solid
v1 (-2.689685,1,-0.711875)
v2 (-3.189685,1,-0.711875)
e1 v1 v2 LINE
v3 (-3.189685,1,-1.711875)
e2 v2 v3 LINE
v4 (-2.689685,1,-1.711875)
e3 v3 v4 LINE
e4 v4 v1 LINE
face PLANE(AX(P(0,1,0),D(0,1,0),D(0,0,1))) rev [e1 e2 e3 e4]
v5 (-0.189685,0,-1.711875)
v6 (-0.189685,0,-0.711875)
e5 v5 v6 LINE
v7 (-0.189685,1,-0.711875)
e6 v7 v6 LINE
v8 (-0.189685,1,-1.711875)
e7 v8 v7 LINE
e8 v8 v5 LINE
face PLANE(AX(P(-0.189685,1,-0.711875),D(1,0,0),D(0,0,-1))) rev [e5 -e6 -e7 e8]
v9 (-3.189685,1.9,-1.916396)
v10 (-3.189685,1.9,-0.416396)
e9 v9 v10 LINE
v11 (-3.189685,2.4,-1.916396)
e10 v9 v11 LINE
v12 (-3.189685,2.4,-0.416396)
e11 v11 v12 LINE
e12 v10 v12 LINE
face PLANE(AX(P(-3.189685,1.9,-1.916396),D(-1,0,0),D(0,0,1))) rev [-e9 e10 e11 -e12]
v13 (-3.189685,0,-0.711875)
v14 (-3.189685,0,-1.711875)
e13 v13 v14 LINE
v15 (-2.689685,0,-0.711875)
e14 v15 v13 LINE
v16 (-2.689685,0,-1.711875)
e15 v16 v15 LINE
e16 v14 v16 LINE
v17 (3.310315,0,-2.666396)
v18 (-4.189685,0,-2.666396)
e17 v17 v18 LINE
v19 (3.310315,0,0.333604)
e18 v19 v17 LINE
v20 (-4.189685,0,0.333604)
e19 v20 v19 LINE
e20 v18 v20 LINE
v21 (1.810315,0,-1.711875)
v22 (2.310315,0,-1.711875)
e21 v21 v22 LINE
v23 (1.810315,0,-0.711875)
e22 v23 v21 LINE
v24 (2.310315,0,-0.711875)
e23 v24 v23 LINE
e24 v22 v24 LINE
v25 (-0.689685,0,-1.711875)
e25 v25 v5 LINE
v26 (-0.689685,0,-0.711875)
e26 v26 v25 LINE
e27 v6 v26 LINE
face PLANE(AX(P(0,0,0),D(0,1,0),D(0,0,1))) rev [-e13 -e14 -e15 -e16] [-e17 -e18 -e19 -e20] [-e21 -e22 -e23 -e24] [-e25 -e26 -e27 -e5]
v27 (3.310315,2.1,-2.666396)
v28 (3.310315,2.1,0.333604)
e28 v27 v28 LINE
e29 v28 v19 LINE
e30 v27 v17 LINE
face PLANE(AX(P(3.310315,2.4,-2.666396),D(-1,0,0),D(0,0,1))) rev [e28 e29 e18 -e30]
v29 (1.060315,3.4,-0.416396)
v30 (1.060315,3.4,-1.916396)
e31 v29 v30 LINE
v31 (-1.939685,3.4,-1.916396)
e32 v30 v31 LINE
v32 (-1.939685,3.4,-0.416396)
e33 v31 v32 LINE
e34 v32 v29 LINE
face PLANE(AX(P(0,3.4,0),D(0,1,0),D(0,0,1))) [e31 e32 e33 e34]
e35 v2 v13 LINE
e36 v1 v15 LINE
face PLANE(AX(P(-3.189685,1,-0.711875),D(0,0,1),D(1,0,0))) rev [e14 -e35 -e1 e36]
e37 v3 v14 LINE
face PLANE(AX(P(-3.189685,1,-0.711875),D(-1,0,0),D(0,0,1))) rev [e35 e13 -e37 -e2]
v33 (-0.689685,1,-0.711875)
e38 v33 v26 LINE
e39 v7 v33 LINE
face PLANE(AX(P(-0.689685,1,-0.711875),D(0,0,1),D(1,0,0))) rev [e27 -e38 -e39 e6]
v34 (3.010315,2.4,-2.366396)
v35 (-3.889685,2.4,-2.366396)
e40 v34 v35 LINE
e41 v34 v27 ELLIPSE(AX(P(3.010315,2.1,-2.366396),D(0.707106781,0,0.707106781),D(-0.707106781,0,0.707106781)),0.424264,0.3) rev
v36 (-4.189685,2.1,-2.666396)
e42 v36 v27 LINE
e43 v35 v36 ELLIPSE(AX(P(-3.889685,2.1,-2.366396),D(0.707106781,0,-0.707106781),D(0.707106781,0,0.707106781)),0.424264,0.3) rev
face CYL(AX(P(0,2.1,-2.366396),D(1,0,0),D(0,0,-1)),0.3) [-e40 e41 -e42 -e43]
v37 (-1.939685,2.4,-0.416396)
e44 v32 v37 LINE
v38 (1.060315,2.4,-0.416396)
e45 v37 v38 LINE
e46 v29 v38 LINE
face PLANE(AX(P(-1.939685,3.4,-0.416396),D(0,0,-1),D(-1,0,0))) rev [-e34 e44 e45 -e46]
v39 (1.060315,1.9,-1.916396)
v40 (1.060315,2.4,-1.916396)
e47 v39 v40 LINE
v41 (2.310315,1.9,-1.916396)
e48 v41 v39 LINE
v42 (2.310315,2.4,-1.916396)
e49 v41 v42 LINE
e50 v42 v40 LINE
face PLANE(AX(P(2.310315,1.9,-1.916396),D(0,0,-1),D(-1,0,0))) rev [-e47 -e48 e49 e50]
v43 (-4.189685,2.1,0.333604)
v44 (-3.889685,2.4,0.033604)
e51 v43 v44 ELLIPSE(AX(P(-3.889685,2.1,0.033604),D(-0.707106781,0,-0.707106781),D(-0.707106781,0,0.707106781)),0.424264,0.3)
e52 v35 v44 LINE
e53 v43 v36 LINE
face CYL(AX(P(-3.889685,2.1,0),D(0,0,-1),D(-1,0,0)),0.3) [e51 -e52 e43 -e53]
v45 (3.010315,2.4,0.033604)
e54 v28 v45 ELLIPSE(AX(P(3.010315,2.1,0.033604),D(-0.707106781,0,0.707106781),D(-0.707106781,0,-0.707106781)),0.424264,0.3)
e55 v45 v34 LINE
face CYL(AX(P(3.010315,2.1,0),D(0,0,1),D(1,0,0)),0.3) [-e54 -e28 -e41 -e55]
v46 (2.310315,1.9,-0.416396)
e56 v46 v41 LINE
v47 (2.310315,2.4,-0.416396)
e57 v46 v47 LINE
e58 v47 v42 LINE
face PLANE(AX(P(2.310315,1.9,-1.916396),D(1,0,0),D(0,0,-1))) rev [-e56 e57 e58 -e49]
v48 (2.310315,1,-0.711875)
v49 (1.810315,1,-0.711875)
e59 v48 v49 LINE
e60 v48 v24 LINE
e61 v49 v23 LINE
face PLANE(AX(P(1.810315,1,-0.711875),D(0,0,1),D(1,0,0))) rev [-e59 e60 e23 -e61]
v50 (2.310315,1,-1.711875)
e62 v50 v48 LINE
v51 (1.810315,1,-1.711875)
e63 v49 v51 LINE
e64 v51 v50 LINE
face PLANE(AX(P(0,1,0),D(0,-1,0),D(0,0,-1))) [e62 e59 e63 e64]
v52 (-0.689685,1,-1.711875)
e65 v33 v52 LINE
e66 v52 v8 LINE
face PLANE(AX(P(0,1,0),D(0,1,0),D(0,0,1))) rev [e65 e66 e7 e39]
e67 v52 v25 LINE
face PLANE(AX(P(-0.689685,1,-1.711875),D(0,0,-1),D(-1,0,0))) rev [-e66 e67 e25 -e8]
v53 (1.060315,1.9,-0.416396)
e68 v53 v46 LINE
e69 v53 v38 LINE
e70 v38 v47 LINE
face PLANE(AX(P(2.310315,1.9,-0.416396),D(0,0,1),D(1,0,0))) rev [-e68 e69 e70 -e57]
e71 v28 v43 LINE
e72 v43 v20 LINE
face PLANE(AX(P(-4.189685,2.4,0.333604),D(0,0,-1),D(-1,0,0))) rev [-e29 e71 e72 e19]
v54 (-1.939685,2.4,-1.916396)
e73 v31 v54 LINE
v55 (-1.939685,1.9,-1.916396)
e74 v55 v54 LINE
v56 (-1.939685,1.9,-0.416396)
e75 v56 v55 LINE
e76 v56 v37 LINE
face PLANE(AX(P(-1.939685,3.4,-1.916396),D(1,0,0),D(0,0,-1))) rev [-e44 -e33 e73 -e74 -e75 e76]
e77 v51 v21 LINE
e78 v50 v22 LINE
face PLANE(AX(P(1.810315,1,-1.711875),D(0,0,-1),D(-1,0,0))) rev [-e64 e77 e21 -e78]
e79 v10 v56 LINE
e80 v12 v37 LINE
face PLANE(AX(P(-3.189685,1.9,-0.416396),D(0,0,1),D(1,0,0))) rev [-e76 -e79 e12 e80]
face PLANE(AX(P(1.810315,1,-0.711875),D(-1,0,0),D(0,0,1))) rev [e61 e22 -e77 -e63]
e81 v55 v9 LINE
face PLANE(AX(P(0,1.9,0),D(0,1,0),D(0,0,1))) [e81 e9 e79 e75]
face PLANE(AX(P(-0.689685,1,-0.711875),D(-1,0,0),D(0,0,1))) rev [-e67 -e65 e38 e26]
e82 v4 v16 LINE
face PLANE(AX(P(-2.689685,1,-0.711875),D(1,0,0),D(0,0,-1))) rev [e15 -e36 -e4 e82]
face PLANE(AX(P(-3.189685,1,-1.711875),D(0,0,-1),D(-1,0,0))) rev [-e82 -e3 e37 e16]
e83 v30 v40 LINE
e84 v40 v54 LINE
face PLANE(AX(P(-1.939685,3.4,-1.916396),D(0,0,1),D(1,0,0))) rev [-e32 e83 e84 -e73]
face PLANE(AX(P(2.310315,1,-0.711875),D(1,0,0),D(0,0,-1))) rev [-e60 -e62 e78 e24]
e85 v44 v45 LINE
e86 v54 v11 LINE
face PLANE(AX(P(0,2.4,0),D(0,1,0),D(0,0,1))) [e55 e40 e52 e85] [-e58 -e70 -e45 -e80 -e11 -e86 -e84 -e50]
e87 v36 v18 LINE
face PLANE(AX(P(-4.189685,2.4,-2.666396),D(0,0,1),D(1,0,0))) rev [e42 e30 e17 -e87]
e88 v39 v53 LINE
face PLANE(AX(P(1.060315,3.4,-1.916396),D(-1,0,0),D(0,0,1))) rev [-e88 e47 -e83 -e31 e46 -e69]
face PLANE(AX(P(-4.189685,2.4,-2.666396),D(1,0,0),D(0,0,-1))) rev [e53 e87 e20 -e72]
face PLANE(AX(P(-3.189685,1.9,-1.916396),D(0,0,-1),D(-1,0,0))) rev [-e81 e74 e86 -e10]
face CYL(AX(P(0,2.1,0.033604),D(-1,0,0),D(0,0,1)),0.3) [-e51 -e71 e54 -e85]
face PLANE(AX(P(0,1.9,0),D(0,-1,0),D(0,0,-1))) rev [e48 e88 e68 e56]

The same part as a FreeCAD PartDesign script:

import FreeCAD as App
import Part
import Sketcher


def edges_at(feature, points):
    """Names of the edges that pass closest to the given points."""
    edges = feature.Shape.Edges
    near = lambda p: min(range(len(edges)), key=lambda i: edges[i].distToShape(Part.Vertex(*p))[0])
    return sorted({f"Edge{near(p) + 1}" for p in points})

doc = App.newDocument("Part")
params = doc.addObject("Spreadsheet::Sheet", "Params")
for row, (alias, value) in enumerate([
    ("sketch1_height", "3 mm"),
    ("sketch1_width", "7.5 mm"),
    ("pad1_length", "2.4 mm"),
    ("sketch2_width", "3 mm"),
    ("sketch2_height", "1.5 mm"),
    ("pad2_length", "1 mm"),
    ("sketch3_height", "1.5 mm"),
    ("sketch3_width", "1.25 mm"),
    ("pocket1_length", "0.5 mm"),
    ("sketch4_height", "1 mm"),
    ("sketch4_width", "0.5 mm"),
    ("pocket2_length", "1 mm"),
    ("fillet_radius", "0.3 mm"),
], start=1):
    params.set(f"A{row}", alias)
    params.set(f"B{row}", "=" + value)
    params.setAlias(f"B{row}", alias)

body = doc.addObject("PartDesign::Body", "Body")

sketch1 = body.newObject("Sketcher::SketchObject", "Sketch")
sketch1.AttachmentSupport = (doc.getObject("XZ_Plane"), [""])
sketch1.MapMode = "FlatFace"
sketch1.addGeometry(Part.LineSegment(App.Vector(-4.189685, -2.666396, 0), App.Vector(-4.189685, 0.333604, 0)), False)
sketch1.addGeometry(Part.LineSegment(App.Vector(-4.189685, 0.333604, 0), App.Vector(3.310315, 0.333604, 0)), False)
sketch1.addGeometry(Part.LineSegment(App.Vector(3.310315, 0.333604, 0), App.Vector(3.310315, -2.666396, 0)), False)
sketch1.addGeometry(Part.LineSegment(App.Vector(3.310315, -2.666396, 0), App.Vector(-4.189685, -2.666396, 0)), False)
sketch1.addConstraint(Sketcher.Constraint("Coincident", 0, 2, 1, 1))
sketch1.addConstraint(Sketcher.Constraint("Coincident", 1, 2, 2, 1))
sketch1.addConstraint(Sketcher.Constraint("Coincident", 2, 2, 3, 1))
sketch1.addConstraint(Sketcher.Constraint("Coincident", 3, 2, 0, 1))
sketch1.addConstraint(Sketcher.Constraint("Vertical", 0))
sketch1.addConstraint(Sketcher.Constraint("Horizontal", 1))
sketch1.addConstraint(Sketcher.Constraint("Vertical", 2))
sketch1.addConstraint(Sketcher.Constraint("Horizontal", 3))
sketch1.addConstraint(Sketcher.Constraint("DistanceY", 0, 1, 0, 2, 3.0))
sketch1.addConstraint(Sketcher.Constraint("DistanceX", 1, 1, 1, 2, 7.5))
sketch1.addConstraint(Sketcher.Constraint("DistanceX", 0, 2, -1, 1, 4.189685))
sketch1.addConstraint(Sketcher.Constraint("DistanceY", -1, 1, 0, 2, 0.333604))
sketch1.setExpression("Constraints[8]", "Params.sketch1_height")
sketch1.setExpression("Constraints[9]", "Params.sketch1_width")
pad1 = body.newObject("PartDesign::Pad", "Pad")
pad1.Profile = sketch1
pad1.setExpression("Length", "Params.pad1_length")
pad1.Reversed = True

sketch2 = body.newObject("Sketcher::SketchObject", "Sketch001")
sketch2.AttachmentSupport = (doc.getObject("XZ_Plane"), [""])
sketch2.MapMode = "FlatFace"
sketch2.AttachmentOffset = App.Placement(App.Vector(0, 0, -2.4), App.Rotation())
sketch2.addGeometry(Part.LineSegment(App.Vector(-1.939685, -1.916396, 0), App.Vector(-1.939685, -0.416396, 0)), False)
sketch2.addGeometry(Part.LineSegment(App.Vector(-1.939685, -0.416396, 0), App.Vector(1.060315, -0.416396, 0)), False)
sketch2.addGeometry(Part.LineSegment(App.Vector(1.060315, -0.416396, 0), App.Vector(1.060315, -1.916396, 0)), False)
sketch2.addGeometry(Part.LineSegment(App.Vector(1.060315, -1.916396, 0), App.Vector(-1.939685, -1.916396, 0)), False)
sketch2.addConstraint(Sketcher.Constraint("Coincident", 0, 2, 1, 1))
sketch2.addConstraint(Sketcher.Constraint("Coincident", 1, 2, 2, 1))
sketch2.addConstraint(Sketcher.Constraint("Coincident", 2, 2, 3, 1))
sketch2.addConstraint(Sketcher.Constraint("Coincident", 3, 2, 0, 1))
sketch2.addConstraint(Sketcher.Constraint("Vertical", 0))
sketch2.addConstraint(Sketcher.Constraint("Horizontal", 1))
sketch2.addConstraint(Sketcher.Constraint("Vertical", 2))
sketch2.addConstraint(Sketcher.Constraint("Horizontal", 3))
sketch2.addConstraint(Sketcher.Constraint("DistanceX", 1, 1, 1, 2, 3.0))
sketch2.addConstraint(Sketcher.Constraint("DistanceY", 0, 1, 0, 2, 1.5))
sketch2.addConstraint(Sketcher.Constraint("DistanceX", 0, 2, -1, 1, 1.939685))
sketch2.addConstraint(Sketcher.Constraint("DistanceY", 0, 2, -1, 1, 0.416396))
sketch2.setExpression("Constraints[8]", "Params.sketch2_width")
sketch2.setExpression("Constraints[9]", "Params.sketch2_height")
pad2 = body.newObject("PartDesign::Pad", "Pad001")
pad2.Profile = sketch2
pad2.setExpression("Length", "Params.pad2_length")
pad2.Reversed = True

sketch3 = body.newObject("Sketcher::SketchObject", "Sketch002")
sketch3.AttachmentSupport = (doc.getObject("XZ_Plane"), [""])
sketch3.MapMode = "FlatFace"
sketch3.AttachmentOffset = App.Placement(App.Vector(0, 0, -2.4), App.Rotation())
sketch3.addGeometry(Part.LineSegment(App.Vector(1.060315, -1.916396, 0), App.Vector(1.060315, -0.416396, 0)), False)
sketch3.addGeometry(Part.LineSegment(App.Vector(1.060315, -0.416396, 0), App.Vector(2.310315, -0.416396, 0)), False)
sketch3.addGeometry(Part.LineSegment(App.Vector(2.310315, -0.416396, 0), App.Vector(2.310315, -1.916396, 0)), False)
sketch3.addGeometry(Part.LineSegment(App.Vector(2.310315, -1.916396, 0), App.Vector(1.060315, -1.916396, 0)), False)
sketch3.addGeometry(Part.LineSegment(App.Vector(-3.189685, -1.916396, 0), App.Vector(-3.189685, -0.416396, 0)), False)
sketch3.addGeometry(Part.LineSegment(App.Vector(-3.189685, -0.416396, 0), App.Vector(-1.939685, -0.416396, 0)), False)
sketch3.addGeometry(Part.LineSegment(App.Vector(-1.939685, -0.416396, 0), App.Vector(-1.939685, -1.916396, 0)), False)
sketch3.addGeometry(Part.LineSegment(App.Vector(-1.939685, -1.916396, 0), App.Vector(-3.189685, -1.916396, 0)), False)
sketch3.addConstraint(Sketcher.Constraint("Coincident", 0, 2, 1, 1))
sketch3.addConstraint(Sketcher.Constraint("Coincident", 1, 2, 2, 1))
sketch3.addConstraint(Sketcher.Constraint("Coincident", 2, 2, 3, 1))
sketch3.addConstraint(Sketcher.Constraint("Coincident", 3, 2, 0, 1))
sketch3.addConstraint(Sketcher.Constraint("Coincident", 4, 2, 5, 1))
sketch3.addConstraint(Sketcher.Constraint("Coincident", 5, 2, 6, 1))
sketch3.addConstraint(Sketcher.Constraint("Coincident", 6, 2, 7, 1))
sketch3.addConstraint(Sketcher.Constraint("Coincident", 7, 2, 4, 1))
sketch3.addConstraint(Sketcher.Constraint("Vertical", 0))
sketch3.addConstraint(Sketcher.Constraint("Horizontal", 1))
sketch3.addConstraint(Sketcher.Constraint("Vertical", 2))
sketch3.addConstraint(Sketcher.Constraint("Horizontal", 3))
sketch3.addConstraint(Sketcher.Constraint("Vertical", 4))
sketch3.addConstraint(Sketcher.Constraint("Horizontal", 5))
sketch3.addConstraint(Sketcher.Constraint("Vertical", 6))
sketch3.addConstraint(Sketcher.Constraint("Horizontal", 7))
sketch3.addConstraint(Sketcher.Constraint("Horizontal", 1, 2, 4, 2))
sketch3.addConstraint(Sketcher.Constraint("Horizontal", 3, 2, 6, 2))
sketch3.addConstraint(Sketcher.Constraint("Equal", 3, 5))
sketch3.addConstraint(Sketcher.Constraint("DistanceY", 0, 1, 0, 2, 1.5))
sketch3.addConstraint(Sketcher.Constraint("DistanceX", 5, 2, 0, 2, 3.0))
sketch3.addConstraint(Sketcher.Constraint("DistanceX", 1, 1, 1, 2, 1.25))
sketch3.addConstraint(Sketcher.Constraint("DistanceX", -1, 1, 0, 2, 1.060315))
sketch3.addConstraint(Sketcher.Constraint("DistanceY", 0, 2, -1, 1, 0.416396))
sketch3.setExpression("Constraints[19]", "Params.sketch3_height")
sketch3.setExpression("Constraints[21]", "Params.sketch3_width")
pocket1 = body.newObject("PartDesign::Pocket", "Pocket")
pocket1.Profile = sketch3
pocket1.setExpression("Length", "Params.pocket1_length")
pocket1.Reversed = True

sketch4 = body.newObject("Sketcher::SketchObject", "Sketch003")
sketch4.AttachmentSupport = (doc.getObject("XZ_Plane"), [""])
sketch4.MapMode = "FlatFace"
sketch4.addGeometry(Part.LineSegment(App.Vector(1.810315, -0.711875, 0), App.Vector(1.810315, -1.711875, 0)), False)
sketch4.addGeometry(Part.LineSegment(App.Vector(1.810315, -1.711875, 0), App.Vector(2.310315, -1.711875, 0)), False)
sketch4.addGeometry(Part.LineSegment(App.Vector(2.310315, -1.711875, 0), App.Vector(2.310315, -0.711875, 0)), False)
sketch4.addGeometry(Part.LineSegment(App.Vector(2.310315, -0.711875, 0), App.Vector(1.810315, -0.711875, 0)), False)
sketch4.addGeometry(Part.LineSegment(App.Vector(-0.689685, -0.711875, 0), App.Vector(-0.689685, -1.711875, 0)), False)
sketch4.addGeometry(Part.LineSegment(App.Vector(-0.689685, -1.711875, 0), App.Vector(-0.189685, -1.711875, 0)), False)
sketch4.addGeometry(Part.LineSegment(App.Vector(-0.189685, -1.711875, 0), App.Vector(-0.189685, -0.711875, 0)), False)
sketch4.addGeometry(Part.LineSegment(App.Vector(-0.189685, -0.711875, 0), App.Vector(-0.689685, -0.711875, 0)), False)
sketch4.addGeometry(Part.LineSegment(App.Vector(-3.189685, -0.711875, 0), App.Vector(-3.189685, -1.711875, 0)), False)
sketch4.addGeometry(Part.LineSegment(App.Vector(-3.189685, -1.711875, 0), App.Vector(-2.689685, -1.711875, 0)), False)
sketch4.addGeometry(Part.LineSegment(App.Vector(-2.689685, -1.711875, 0), App.Vector(-2.689685, -0.711875, 0)), False)
sketch4.addGeometry(Part.LineSegment(App.Vector(-2.689685, -0.711875, 0), App.Vector(-3.189685, -0.711875, 0)), False)
sketch4.addConstraint(Sketcher.Constraint("Coincident", 0, 2, 1, 1))
sketch4.addConstraint(Sketcher.Constraint("Coincident", 1, 2, 2, 1))
sketch4.addConstraint(Sketcher.Constraint("Coincident", 2, 2, 3, 1))
sketch4.addConstraint(Sketcher.Constraint("Coincident", 3, 2, 0, 1))
sketch4.addConstraint(Sketcher.Constraint("Coincident", 4, 2, 5, 1))
sketch4.addConstraint(Sketcher.Constraint("Coincident", 5, 2, 6, 1))
sketch4.addConstraint(Sketcher.Constraint("Coincident", 6, 2, 7, 1))
sketch4.addConstraint(Sketcher.Constraint("Coincident", 7, 2, 4, 1))
sketch4.addConstraint(Sketcher.Constraint("Coincident", 8, 2, 9, 1))
sketch4.addConstraint(Sketcher.Constraint("Coincident", 9, 2, 10, 1))
sketch4.addConstraint(Sketcher.Constraint("Coincident", 10, 2, 11, 1))
sketch4.addConstraint(Sketcher.Constraint("Coincident", 11, 2, 8, 1))
sketch4.addConstraint(Sketcher.Constraint("Vertical", 0))
sketch4.addConstraint(Sketcher.Constraint("Horizontal", 1))
sketch4.addConstraint(Sketcher.Constraint("Vertical", 2))
sketch4.addConstraint(Sketcher.Constraint("Horizontal", 3))
sketch4.addConstraint(Sketcher.Constraint("Vertical", 4))
sketch4.addConstraint(Sketcher.Constraint("Horizontal", 5))
sketch4.addConstraint(Sketcher.Constraint("Vertical", 6))
sketch4.addConstraint(Sketcher.Constraint("Horizontal", 7))
sketch4.addConstraint(Sketcher.Constraint("Vertical", 8))
sketch4.addConstraint(Sketcher.Constraint("Horizontal", 9))
sketch4.addConstraint(Sketcher.Constraint("Vertical", 10))
sketch4.addConstraint(Sketcher.Constraint("Horizontal", 11))
sketch4.addConstraint(Sketcher.Constraint("Horizontal", 1, 2, 4, 2))
sketch4.addConstraint(Sketcher.Constraint("Horizontal", 3, 2, 6, 2))
sketch4.addConstraint(Sketcher.Constraint("Horizontal", 5, 2, 8, 2))
sketch4.addConstraint(Sketcher.Constraint("Horizontal", 7, 2, 10, 2))
sketch4.addConstraint(Sketcher.Constraint("Equal", 3, 5))
sketch4.addConstraint(Sketcher.Constraint("Equal", 7, 9))
sketch4.addConstraint(Sketcher.Constraint("DistanceY", 0, 2, 0, 1, 1.0))
sketch4.addConstraint(Sketcher.Constraint("DistanceX", 1, 1, 1, 2, 0.5))
sketch4.addConstraint(Sketcher.Constraint("DistanceX", 4, 2, 1, 2, 3.0))
sketch4.addConstraint(Sketcher.Constraint("DistanceX", 8, 2, 5, 2, 3.0))
sketch4.addConstraint(Sketcher.Constraint("DistanceX", -1, 1, 0, 2, 1.810315))
sketch4.addConstraint(Sketcher.Constraint("DistanceY", 0, 2, -1, 1, 1.711875))
sketch4.setExpression("Constraints[30]", "Params.sketch4_height")
sketch4.setExpression("Constraints[31]", "Params.sketch4_width")
pocket2 = body.newObject("PartDesign::Pocket", "Pocket001")
pocket2.Profile = sketch4
pocket2.setExpression("Length", "Params.pocket2_length")
doc.recompute()

fillet = body.newObject("PartDesign::Fillet", "Fillet")
fillet.Base = (pocket2, edges_at(pocket2, [
    (3.31, 2.4, -1.166),
    (-0.44, 2.4, -2.666),
    (-4.19, 2.4, -1.166),
    (-0.44, 2.4, 0.334),
]))
fillet.setExpression("Radius", "Params.fillet_radius")

doc.recompute()
